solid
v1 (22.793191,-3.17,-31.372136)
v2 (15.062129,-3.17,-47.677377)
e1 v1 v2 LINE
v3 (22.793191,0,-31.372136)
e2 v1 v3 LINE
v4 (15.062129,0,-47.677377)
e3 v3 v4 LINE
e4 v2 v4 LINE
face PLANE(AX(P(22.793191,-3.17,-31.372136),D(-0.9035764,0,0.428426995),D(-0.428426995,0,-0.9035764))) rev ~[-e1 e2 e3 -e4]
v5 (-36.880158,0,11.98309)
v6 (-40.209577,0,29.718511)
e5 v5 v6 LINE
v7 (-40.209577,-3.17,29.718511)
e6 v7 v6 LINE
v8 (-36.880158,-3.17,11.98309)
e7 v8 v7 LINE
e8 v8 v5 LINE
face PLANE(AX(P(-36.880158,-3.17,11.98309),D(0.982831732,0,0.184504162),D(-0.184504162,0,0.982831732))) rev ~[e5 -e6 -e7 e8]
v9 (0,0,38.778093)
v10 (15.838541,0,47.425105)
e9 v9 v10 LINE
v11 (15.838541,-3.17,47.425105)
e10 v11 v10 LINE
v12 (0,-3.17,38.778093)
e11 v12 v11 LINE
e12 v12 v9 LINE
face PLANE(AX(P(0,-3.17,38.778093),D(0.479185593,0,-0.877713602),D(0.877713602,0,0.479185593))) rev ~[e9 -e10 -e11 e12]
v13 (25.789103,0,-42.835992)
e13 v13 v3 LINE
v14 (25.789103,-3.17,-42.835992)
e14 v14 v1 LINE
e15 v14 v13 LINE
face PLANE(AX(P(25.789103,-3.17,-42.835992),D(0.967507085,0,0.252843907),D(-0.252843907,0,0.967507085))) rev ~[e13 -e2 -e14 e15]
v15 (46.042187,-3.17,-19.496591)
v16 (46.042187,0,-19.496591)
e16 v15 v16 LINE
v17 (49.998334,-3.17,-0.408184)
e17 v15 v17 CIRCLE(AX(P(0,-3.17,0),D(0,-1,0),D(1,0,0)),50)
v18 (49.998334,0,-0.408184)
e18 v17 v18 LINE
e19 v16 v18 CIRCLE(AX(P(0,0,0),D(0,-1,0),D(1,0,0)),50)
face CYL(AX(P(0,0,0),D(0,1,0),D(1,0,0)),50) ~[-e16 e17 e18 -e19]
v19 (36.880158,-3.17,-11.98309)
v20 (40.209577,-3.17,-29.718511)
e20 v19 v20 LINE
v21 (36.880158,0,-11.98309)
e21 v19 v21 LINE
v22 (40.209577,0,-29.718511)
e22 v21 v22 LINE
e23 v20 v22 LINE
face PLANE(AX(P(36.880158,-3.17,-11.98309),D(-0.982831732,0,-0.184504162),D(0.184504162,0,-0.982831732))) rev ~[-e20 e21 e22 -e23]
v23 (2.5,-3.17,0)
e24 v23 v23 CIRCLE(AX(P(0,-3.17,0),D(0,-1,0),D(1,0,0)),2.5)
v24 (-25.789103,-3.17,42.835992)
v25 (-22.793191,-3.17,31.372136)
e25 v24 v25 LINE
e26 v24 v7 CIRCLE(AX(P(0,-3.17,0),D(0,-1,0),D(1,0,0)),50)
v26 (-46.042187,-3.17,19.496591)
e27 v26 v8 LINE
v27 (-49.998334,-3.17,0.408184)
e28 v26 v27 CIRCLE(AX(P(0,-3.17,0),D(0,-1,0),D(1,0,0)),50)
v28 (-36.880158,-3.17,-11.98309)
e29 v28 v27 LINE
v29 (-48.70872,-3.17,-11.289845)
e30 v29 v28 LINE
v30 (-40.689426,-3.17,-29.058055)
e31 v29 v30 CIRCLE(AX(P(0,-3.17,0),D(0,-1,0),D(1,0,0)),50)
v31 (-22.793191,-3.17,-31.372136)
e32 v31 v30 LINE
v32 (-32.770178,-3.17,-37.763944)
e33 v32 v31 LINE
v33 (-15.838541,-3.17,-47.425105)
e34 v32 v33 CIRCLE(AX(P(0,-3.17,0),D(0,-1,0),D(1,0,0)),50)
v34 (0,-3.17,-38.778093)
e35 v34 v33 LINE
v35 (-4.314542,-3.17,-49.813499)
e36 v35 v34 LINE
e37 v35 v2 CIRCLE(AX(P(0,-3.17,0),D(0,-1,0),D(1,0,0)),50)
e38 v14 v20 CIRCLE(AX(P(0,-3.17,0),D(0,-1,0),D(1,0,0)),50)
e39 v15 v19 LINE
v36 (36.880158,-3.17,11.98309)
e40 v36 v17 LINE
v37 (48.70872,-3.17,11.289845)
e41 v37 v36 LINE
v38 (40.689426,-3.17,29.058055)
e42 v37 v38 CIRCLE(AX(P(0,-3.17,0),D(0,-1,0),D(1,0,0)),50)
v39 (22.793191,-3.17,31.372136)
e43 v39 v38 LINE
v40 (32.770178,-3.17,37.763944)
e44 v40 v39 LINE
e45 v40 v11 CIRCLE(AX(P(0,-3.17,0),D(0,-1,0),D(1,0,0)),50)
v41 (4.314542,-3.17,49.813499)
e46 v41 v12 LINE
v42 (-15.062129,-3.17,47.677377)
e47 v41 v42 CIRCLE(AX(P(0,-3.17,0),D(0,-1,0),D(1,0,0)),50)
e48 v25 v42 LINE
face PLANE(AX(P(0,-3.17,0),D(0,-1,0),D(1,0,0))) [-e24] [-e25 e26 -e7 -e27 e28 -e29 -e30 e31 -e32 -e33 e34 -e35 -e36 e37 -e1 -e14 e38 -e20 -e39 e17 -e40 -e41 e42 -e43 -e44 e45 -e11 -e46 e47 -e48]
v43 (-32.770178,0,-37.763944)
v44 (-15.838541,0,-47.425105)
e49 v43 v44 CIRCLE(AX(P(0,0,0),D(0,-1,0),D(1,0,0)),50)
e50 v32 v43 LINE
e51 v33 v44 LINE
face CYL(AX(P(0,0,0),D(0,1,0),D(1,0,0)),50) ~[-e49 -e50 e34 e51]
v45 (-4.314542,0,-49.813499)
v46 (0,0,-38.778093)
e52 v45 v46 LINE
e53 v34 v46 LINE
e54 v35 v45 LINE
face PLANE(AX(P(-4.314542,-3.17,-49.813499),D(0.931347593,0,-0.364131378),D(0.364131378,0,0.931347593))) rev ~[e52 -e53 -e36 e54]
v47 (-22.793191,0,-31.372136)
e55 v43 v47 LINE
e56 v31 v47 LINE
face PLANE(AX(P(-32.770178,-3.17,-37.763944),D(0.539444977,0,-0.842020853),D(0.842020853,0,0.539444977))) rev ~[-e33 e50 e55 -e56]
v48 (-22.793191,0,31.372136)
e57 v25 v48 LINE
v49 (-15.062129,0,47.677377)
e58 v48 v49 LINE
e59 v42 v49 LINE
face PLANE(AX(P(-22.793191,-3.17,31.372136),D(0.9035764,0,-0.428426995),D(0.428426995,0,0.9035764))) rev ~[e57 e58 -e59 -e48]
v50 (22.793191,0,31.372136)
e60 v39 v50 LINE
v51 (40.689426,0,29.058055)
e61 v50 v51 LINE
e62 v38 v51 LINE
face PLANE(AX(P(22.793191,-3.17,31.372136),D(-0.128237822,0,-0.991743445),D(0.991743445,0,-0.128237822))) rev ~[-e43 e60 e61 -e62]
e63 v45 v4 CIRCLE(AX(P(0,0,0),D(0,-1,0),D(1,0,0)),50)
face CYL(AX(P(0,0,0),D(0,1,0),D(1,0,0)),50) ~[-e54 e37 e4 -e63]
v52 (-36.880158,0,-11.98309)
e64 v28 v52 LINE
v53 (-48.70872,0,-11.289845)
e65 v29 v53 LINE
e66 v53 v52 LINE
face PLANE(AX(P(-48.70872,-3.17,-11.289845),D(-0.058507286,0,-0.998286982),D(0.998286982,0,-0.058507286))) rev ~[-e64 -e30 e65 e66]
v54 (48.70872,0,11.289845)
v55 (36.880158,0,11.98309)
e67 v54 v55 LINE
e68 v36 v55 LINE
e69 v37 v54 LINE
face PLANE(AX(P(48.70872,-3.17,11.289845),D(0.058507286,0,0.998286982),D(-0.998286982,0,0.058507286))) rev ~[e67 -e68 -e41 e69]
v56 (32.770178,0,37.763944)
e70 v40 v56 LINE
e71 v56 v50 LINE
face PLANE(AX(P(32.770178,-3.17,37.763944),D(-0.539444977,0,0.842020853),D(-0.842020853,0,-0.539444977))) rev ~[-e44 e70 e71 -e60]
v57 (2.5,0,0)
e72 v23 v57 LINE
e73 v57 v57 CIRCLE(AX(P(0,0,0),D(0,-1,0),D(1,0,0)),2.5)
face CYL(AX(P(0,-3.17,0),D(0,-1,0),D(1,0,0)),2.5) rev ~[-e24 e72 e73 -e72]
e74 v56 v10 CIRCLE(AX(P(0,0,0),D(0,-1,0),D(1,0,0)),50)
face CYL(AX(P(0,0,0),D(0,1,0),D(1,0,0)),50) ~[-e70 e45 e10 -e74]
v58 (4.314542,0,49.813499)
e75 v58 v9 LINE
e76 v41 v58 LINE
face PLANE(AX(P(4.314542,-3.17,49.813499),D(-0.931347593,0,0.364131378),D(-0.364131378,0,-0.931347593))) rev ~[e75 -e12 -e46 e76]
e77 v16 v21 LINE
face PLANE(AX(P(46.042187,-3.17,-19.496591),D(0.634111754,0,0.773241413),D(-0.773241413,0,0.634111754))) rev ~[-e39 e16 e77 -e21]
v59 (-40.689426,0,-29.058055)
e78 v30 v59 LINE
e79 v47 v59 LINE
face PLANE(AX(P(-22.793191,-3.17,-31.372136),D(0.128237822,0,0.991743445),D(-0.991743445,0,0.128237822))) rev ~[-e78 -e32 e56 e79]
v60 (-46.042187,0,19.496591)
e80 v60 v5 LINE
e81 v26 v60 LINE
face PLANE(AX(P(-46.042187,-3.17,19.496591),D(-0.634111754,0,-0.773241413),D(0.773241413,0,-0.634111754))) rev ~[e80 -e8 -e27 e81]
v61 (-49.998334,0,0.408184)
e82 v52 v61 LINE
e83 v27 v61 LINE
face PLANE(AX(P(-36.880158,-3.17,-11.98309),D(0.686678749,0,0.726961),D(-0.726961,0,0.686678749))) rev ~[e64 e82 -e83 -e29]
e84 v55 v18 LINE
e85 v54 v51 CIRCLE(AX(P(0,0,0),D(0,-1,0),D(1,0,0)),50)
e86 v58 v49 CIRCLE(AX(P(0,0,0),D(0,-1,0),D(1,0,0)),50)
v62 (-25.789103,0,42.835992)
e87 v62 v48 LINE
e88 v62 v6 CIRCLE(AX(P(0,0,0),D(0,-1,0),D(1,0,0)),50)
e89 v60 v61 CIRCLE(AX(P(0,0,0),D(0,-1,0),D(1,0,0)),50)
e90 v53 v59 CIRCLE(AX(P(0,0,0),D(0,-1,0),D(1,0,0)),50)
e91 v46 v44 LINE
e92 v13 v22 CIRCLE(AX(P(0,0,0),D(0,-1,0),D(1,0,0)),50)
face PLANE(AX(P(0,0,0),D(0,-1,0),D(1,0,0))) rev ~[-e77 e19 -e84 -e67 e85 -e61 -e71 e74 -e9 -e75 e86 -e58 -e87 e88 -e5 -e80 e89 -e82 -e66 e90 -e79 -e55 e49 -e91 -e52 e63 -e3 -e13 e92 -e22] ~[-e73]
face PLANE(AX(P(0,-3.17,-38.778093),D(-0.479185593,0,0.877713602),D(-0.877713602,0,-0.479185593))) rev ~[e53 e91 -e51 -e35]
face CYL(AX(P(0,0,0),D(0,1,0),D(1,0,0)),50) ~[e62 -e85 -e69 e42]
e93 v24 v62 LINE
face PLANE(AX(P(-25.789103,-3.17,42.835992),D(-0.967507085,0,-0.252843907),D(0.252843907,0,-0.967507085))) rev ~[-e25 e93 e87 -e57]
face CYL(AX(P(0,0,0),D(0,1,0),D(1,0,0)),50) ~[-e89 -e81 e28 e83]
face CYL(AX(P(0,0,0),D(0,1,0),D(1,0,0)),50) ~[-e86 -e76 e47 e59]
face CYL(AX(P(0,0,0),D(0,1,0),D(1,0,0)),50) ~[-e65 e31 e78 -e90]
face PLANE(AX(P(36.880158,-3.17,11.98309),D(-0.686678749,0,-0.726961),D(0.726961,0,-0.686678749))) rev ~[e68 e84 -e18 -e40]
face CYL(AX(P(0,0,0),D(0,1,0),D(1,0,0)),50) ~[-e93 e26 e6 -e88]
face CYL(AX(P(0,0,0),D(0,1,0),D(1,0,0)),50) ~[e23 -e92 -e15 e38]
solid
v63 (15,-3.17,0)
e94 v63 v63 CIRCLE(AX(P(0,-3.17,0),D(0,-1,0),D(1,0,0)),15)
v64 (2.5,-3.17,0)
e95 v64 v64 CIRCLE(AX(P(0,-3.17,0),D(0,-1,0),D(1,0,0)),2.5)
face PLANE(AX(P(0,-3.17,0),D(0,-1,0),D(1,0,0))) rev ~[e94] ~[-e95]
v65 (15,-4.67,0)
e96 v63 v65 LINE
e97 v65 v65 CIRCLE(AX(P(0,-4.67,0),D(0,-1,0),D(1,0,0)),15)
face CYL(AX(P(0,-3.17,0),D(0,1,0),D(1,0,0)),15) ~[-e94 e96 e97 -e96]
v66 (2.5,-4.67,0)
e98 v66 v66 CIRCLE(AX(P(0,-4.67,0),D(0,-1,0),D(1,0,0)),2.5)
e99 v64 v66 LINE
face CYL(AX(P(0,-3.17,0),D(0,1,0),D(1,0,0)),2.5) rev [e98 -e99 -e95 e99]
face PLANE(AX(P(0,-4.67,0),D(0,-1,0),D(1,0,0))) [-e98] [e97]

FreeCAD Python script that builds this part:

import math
import FreeCAD as App
import Part
import Sketcher
from FreeCAD import Vector

doc = App.newDocument("Part")
body = doc.addObject("PartDesign::Body", "Body")

sketch1 = body.newObject("Sketcher::SketchObject", "Sketch")
sketch1.AttachmentSupport = (doc.getObject("XZ_Plane"), [""])
sketch1.MapMode = "FlatFace"
sketch1.addGeometry(Part.Circle(Vector(0, 0, 0), Vector(0, 0, 1), 50), False)
sketch1.addConstraint([
    Sketcher.Constraint("Coincident", 0, 3, -1, 1),
    Sketcher.Constraint("Diameter", 0, 100.0),
])
pad1 = body.newObject("PartDesign::Pad", "Pad")
pad1.Profile = sketch1
pad1.Length = 3.17

sketch2 = body.newObject("Sketcher::SketchObject", "Sketch001")
sketch2.AttachmentSupport = (doc.getObject("XZ_Plane"), [""])
sketch2.MapMode = "FlatFace"
sketch2.AttachmentOffset = App.Placement(Vector(0, 0, 3.17), App.Rotation())
sketch2.addGeometry(Part.Circle(Vector(0, 0, 0), Vector(0, 0, 1), 2.5), False)
sketch2.addConstraint([
    Sketcher.Constraint("Coincident", 0, 3, -1, 1),
    Sketcher.Constraint("Diameter", 0, 5.0),
])
pocket1 = body.newObject("PartDesign::Pocket", "Pocket")
pocket1.Profile = sketch2
pocket1.Length = 25

sketch3 = body.newObject("Sketcher::SketchObject", "Sketch002")
sketch3.AttachmentSupport = (doc.getObject("XZ_Plane"), [""])
sketch3.MapMode = "FlatFace"
sketch3.AttachmentOffset = App.Placement(Vector(0, 0, 3.17), App.Rotation())
sketch3.addGeometry([
    Part.LineSegment(Vector(-22.79, 31.37, 0), Vector(-15.06, 47.68, 0)),
    Part.ArcOfCircle(Part.Circle(Vector(0, 0, 0), Vector(0, 0, 1), 50), math.radians(107.53), math.radians(121.05)),
    Part.LineSegment(Vector(-25.79, 42.84, 0), Vector(-22.79, 31.37, 0)),
    Part.LineSegment(Vector(0, 38.78, 0), Vector(15.84, 47.43, 0)),
    Part.ArcOfCircle(Part.Circle(Vector(0, 0, 0), Vector(0, 0, 1), 50), math.radians(71.53), math.radians(85.05)),
    Part.LineSegment(Vector(4.31, 49.81, 0), Vector(0, 38.78, 0)),
    Part.ArcOfCircle(Part.Circle(Vector(0, 0, 0), Vector(0, 0, 1), 50), math.radians(35.53), math.radians(49.05)),
    Part.LineSegment(Vector(32.77, 37.76, 0), Vector(22.79, 31.37, 0)),
    Part.LineSegment(Vector(22.79, 31.37, 0), Vector(40.69, 29.06, 0)),
    Part.ArcOfCircle(Part.Circle(Vector(0, 0, 0), Vector(0, 0, 1), 50), math.radians(0), math.radians(13.05)),
    Part.LineSegment(Vector(48.71, 11.29, 0), Vector(36.88, 11.98, 0)),
    Part.LineSegment(Vector(36.88, 11.98, 0), Vector(50, -0.41, 0)),
    Part.ArcOfCircle(Part.Circle(Vector(0, 0, 0), Vector(0, 0, 1), 50), math.radians(-0.47), math.radians(0)),
    Part.ArcOfCircle(Part.Circle(Vector(0, 0, 0), Vector(0, 0, 1), 50), math.radians(-36.47), math.radians(-22.95)),
    Part.LineSegment(Vector(46.04, -19.5, 0), Vector(36.88, -11.98, 0)),
    Part.LineSegment(Vector(36.88, -11.98, 0), Vector(40.21, -29.72, 0)),
    Part.ArcOfCircle(Part.Circle(Vector(0, 0, 0), Vector(0, 0, 1), 50), math.radians(-72.47), math.radians(-58.95)),
    Part.LineSegment(Vector(25.79, -42.84, 0), Vector(22.79, -31.37, 0)),
    Part.LineSegment(Vector(22.79, -31.37, 0), Vector(15.06, -47.68, 0)),
    Part.ArcOfCircle(Part.Circle(Vector(0, 0, 0), Vector(0, 0, 1), 50), math.radians(-108.47), math.radians(-94.95)),
    Part.LineSegment(Vector(-4.31, -49.81, 0), Vector(0, -38.78, 0)),
    Part.LineSegment(Vector(0, -38.78, 0), Vector(-15.84, -47.43, 0)),
    Part.LineSegment(Vector(-22.79, -31.37, 0), Vector(-40.69, -29.06, 0)),
    Part.ArcOfCircle(Part.Circle(Vector(0, 0, 0), Vector(0, 0, 1), 50), math.radians(-144.47), math.radians(-130.95)),
    Part.LineSegment(Vector(-32.77, -37.76, 0), Vector(-22.79, -31.37, 0)),
    Part.LineSegment(Vector(-36.88, -11.98, 0), Vector(-50, 0.41, 0)),
    Part.ArcOfCircle(Part.Circle(Vector(0, 0, 0), Vector(0, 0, 1), 50), math.radians(179.53), math.radians(193.05)),
    Part.LineSegment(Vector(-48.71, -11.29, 0), Vector(-36.88, -11.98, 0)),
    Part.LineSegment(Vector(-36.88, 11.98, 0), Vector(-40.21, 29.72, 0)),
    Part.ArcOfCircle(Part.Circle(Vector(0, 0, 0), Vector(0, 0, 1), 50), math.radians(143.53), math.radians(157.05)),
    Part.LineSegment(Vector(-46.04, 19.5, 0), Vector(-36.88, 11.98, 0)),
], False)
sketch3.addConstraint([
    Sketcher.Constraint("Coincident", 0, 2, 1, 1),
    Sketcher.Constraint("Coincident", 1, 2, 2, 1),
    Sketcher.Constraint("Coincident", 2, 2, 0, 1),
    Sketcher.Constraint("Coincident", 3, 2, 4, 1),
    Sketcher.Constraint("Coincident", 4, 2, 5, 1),
    Sketcher.Constraint("Coincident", 5, 2, 3, 1),
    Sketcher.Constraint("Coincident", 6, 2, 7, 1),
    Sketcher.Constraint("Coincident", 7, 2, 8, 1),
    Sketcher.Constraint("Coincident", 8, 2, 6, 1),
    Sketcher.Constraint("Coincident", 9, 2, 10, 1),
    Sketcher.Constraint("Coincident", 10, 2, 11, 1),
    Sketcher.Constraint("Coincident", 11, 2, 12, 1),
    Sketcher.Constraint("Tangent", 12, 2, 9, 1),
    Sketcher.Constraint("Coincident", 13, 2, 14, 1),
    Sketcher.Constraint("Coincident", 14, 2, 15, 1),
    Sketcher.Constraint("Coincident", 15, 2, 13, 1),
    Sketcher.Constraint("Coincident", 16, 2, 17, 1),
    Sketcher.Constraint("Coincident", 17, 2, 18, 1),
    Sketcher.Constraint("Coincident", 18, 2, 16, 1),
    Sketcher.Constraint("Coincident", 19, 2, 20, 1),
    Sketcher.Constraint("Coincident", 20, 2, 21, 1),
    Sketcher.Constraint("Coincident", 21, 2, 19, 1),
    Sketcher.Constraint("Coincident", 22, 2, 23, 1),
    Sketcher.Constraint("Coincident", 23, 2, 24, 1),
    Sketcher.Constraint("Coincident", 24, 2, 22, 1),
    Sketcher.Constraint("Coincident", 25, 2, 26, 1),
    Sketcher.Constraint("Coincident", 26, 2, 27, 1),
    Sketcher.Constraint("Coincident", 27, 2, 25, 1),
    Sketcher.Constraint("Coincident", 28, 2, 29, 1),
    Sketcher.Constraint("Coincident", 29, 2, 30, 1),
    Sketcher.Constraint("Coincident", 30, 2, 28, 1),
    Sketcher.Constraint("Coincident", 1, 3, -1, 1),
    Sketcher.Constraint("Coincident", 4, 3, -1, 1),
    Sketcher.Constraint("Coincident", 6, 3, -1, 1),
    Sketcher.Constraint("Coincident", 9, 3, -1, 1),
    Sketcher.Constraint("Coincident", 13, 3, -1, 1),
    Sketcher.Constraint("Coincident", 16, 3, -1, 1),
    Sketcher.Constraint("Coincident", 19, 3, -1, 1),
    Sketcher.Constraint("Coincident", 23, 3, -1, 1),
    Sketcher.Constraint("Coincident", 26, 3, -1, 1),
    Sketcher.Constraint("Coincident", 29, 3, -1, 1),
    Sketcher.Constraint("Equal", 1, 4),
    Sketcher.Constraint("Equal", 4, 6),
    Sketcher.Constraint("Equal", 6, 9),
    Sketcher.Constraint("Equal", 9, 12),
    Sketcher.Constraint("Equal", 12, 13),
    Sketcher.Constraint("Equal", 13, 16),
    Sketcher.Constraint("Equal", 16, 19),
    Sketcher.Constraint("Equal", 19, 23),
    Sketcher.Constraint("Equal", 23, 26),
    Sketcher.Constraint("Equal", 26, 29),
    Sketcher.Constraint("Symmetric", 2, 2, 17, 2, -1, 1),
    Sketcher.Constraint("Symmetric", 5, 2, 20, 2, -1, 1),
    Sketcher.Constraint("Symmetric", 7, 2, 24, 2, -1, 1),
    Sketcher.Constraint("Symmetric", 10, 2, 27, 2, -1, 1),
    Sketcher.Constraint("Symmetric", 14, 2, 30, 2, -1, 1),
    Sketcher.Constraint("Symmetric", 2, 2, 7, 2, -2),
    Sketcher.Constraint("Symmetric", 14, 2, 27, 2, -2),
    Sketcher.Constraint("PointOnObject", 5, 2, -2),
    Sketcher.Constraint("PointOnObject", 12, 2, -1),
    Sketcher.Constraint("Parallel", 2, 17),
    Sketcher.Constraint("Parallel", 0, 18),
    Sketcher.Constraint("Parallel", 5, 20),
    Sketcher.Constraint("Parallel", 3, 21),
    Sketcher.Constraint("Parallel", 8, 22),
    Sketcher.Constraint("Parallel", 7, 24),
    Sketcher.Constraint("Parallel", 11, 25),
    Sketcher.Constraint("Parallel", 10, 27),
    Sketcher.Constraint("Parallel", 15, 28),
    Sketcher.Constraint("Parallel", 14, 30),
    Sketcher.Constraint("Equal", 0, 3),
    Sketcher.Constraint("Equal", 2, 5),
    Sketcher.Constraint("Equal", 5, 7),
    Sketcher.Constraint("Equal", 3, 8),
    Sketcher.Constraint("Equal", 7, 10),
    Sketcher.Constraint("Equal", 8, 11),
    Sketcher.Constraint("Equal", 10, 14),
    Sketcher.Constraint("Equal", 11, 15),
    Sketcher.Constraint("Radius", 1, 50.0),
    Sketcher.Constraint("DistanceX", 4, 2, 3, 2, 11.523999),
    Sketcher.Constraint("DistanceY", -1, 1, 4, 2, 49.813499),
    Sketcher.Constraint("DistanceY", 5, 2, 1, 2, 4.057899),
    Sketcher.Constraint("DistanceY", 9, 2, 6, 2, 26.474099),
    Sketcher.Constraint("DistanceY", 13, 2, 14, 2, 7.513501),
    Sketcher.Constraint("DistanceY", 15, 2, 10, 2, 41.701601),
    Sketcher.Constraint("DistanceY", 16, 2, 13, 2, 23.339401),
])
pocket2 = body.newObject("PartDesign::Pocket", "Pocket001")
pocket2.Profile = sketch3
pocket2.Length = 25
body2 = doc.addObject("PartDesign::Body", "Body001")

sketch4 = body2.newObject("Sketcher::SketchObject", "Sketch003")
sketch4.AttachmentSupport = (doc.getObject("XZ_Plane001"), [""])
sketch4.MapMode = "FlatFace"
sketch4.AttachmentOffset = App.Placement(Vector(0, 0, 3.17), App.Rotation())
sketch4.addGeometry([
    Part.Circle(Vector(0, 0, 0), Vector(0, 0, 1), 15),
    Part.Circle(Vector(0, 0, 0), Vector(0, 0, 1), 2.5),
], False)
sketch4.addConstraint([
    Sketcher.Constraint("Coincident", 0, 3, -1, 1),
    Sketcher.Constraint("Coincident", 1, 3, -1, 1),
    Sketcher.Constraint("Diameter", 0, 30.0),
    Sketcher.Constraint("Diameter", 1, 5.0),
])
pad2 = body2.newObject("PartDesign::Pad", "Pad001")
pad2.Profile = sketch4
pad2.Length = 1.5

doc.recompute()
